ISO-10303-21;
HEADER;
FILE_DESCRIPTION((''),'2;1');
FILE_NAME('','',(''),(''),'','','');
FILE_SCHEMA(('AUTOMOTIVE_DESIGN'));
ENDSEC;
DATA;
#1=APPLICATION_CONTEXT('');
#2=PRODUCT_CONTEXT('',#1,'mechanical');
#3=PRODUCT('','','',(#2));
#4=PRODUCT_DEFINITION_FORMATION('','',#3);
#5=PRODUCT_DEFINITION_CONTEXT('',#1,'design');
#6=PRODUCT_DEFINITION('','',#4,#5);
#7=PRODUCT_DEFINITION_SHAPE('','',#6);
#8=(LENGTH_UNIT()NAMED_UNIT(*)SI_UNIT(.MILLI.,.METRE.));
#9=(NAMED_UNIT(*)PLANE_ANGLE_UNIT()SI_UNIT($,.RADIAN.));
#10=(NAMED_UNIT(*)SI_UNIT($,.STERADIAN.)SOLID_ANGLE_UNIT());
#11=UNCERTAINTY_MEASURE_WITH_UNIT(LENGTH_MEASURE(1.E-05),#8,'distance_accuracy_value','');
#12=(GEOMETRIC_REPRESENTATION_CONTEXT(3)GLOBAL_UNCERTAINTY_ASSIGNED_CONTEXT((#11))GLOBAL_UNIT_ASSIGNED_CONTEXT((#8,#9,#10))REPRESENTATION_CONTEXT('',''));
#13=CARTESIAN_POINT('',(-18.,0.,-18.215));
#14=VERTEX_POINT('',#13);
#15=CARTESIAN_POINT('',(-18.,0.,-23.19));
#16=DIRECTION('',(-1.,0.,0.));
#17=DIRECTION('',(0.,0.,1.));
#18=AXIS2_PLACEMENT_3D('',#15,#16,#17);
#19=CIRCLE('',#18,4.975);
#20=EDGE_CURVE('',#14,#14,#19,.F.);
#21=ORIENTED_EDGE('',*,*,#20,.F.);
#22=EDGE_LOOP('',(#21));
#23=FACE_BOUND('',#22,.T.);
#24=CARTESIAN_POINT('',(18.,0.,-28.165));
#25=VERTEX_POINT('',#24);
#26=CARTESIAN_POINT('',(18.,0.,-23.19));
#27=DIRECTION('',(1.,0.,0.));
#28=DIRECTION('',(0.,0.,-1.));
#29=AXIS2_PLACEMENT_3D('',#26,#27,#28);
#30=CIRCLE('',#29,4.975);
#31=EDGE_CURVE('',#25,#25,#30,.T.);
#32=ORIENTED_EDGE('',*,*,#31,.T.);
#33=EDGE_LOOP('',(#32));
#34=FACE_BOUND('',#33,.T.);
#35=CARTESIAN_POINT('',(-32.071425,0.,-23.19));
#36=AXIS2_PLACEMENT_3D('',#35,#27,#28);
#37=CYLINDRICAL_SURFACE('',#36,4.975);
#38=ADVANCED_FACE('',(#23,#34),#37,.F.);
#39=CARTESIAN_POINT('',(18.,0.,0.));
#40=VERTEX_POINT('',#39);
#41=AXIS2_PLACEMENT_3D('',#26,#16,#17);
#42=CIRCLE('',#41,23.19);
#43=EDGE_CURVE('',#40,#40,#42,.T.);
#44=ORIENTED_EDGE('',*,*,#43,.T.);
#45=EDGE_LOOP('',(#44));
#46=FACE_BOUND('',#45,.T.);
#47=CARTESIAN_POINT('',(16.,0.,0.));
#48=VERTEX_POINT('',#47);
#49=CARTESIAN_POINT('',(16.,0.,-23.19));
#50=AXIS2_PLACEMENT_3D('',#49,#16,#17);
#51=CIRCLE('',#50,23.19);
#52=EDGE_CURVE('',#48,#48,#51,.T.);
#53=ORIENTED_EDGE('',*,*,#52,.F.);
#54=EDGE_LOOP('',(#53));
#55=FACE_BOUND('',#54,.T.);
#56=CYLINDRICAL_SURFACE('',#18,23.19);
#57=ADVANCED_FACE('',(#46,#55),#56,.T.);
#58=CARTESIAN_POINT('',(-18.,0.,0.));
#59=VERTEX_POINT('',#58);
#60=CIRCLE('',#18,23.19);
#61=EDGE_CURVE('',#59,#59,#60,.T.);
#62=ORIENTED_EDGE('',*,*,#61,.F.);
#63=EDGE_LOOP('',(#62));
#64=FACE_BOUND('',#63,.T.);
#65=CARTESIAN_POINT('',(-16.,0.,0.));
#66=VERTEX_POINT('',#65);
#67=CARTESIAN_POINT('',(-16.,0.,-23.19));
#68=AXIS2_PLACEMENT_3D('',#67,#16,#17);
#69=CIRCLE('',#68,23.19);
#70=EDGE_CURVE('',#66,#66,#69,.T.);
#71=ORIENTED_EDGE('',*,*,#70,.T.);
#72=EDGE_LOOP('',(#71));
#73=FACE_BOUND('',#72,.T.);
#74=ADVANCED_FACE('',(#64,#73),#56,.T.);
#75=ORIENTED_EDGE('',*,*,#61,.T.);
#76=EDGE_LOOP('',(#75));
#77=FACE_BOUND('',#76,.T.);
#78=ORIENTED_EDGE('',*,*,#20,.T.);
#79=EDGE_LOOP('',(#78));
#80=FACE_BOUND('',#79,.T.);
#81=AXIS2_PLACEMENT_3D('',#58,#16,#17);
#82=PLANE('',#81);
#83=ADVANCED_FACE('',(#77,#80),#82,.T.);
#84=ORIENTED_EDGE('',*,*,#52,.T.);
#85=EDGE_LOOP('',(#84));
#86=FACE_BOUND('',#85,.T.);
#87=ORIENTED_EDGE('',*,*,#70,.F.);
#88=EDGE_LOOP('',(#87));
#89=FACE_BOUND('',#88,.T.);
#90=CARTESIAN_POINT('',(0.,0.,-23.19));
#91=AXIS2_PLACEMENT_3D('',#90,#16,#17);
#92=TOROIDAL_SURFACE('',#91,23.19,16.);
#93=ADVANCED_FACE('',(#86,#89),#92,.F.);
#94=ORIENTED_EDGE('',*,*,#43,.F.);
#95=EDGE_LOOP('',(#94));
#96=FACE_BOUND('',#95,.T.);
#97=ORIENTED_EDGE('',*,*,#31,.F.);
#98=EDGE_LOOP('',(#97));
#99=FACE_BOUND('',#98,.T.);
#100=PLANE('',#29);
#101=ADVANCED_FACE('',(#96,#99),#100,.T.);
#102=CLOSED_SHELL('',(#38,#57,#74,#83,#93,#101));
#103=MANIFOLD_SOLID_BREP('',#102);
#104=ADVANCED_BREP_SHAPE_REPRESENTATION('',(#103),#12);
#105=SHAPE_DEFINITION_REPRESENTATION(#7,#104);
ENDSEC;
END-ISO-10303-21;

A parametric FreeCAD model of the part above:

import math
import FreeCAD as App
import Part
import Sketcher

V = App.Vector
Q = App.Units.Quantity

doc = App.newDocument("Part")
params = doc.addObject("Spreadsheet::Sheet", "Params")
for row, (alias, value) in enumerate([
    ("sketch1_radius", "16 mm"),
    ("sketch1_width", "2 mm"),
    ("sketch1_height", "23.19 mm"),
    ("revolution_angle", "360 deg"),
    ("sketch2_diameter", "9.95 mm"),
    ("pocket1_length", "36 mm"),
], start=1):
    params.set(f"A{row}", alias)
    params.set(f"B{row}", "=" + value)
    params.setAlias(f"B{row}", alias)

body = doc.addObject("PartDesign::Body", "Body")

sketch1 = body.newObject("Sketcher::SketchObject", "Sketch")
sketch1.AttachmentSupport = (doc.getObject("XZ_Plane"), [""])
sketch1.MapMode = "FlatFace"
sketch1.addGeometry([
    Part.LineSegment(V(-18, 0, 0), V(-16, 0, 0)),
    Part.ArcOfCircle(Part.Circle(V(0, 0, 0), V(0, 0, 1), 16), math.radians(180), math.radians(360)),
    Part.LineSegment(V(16, 0, 0), V(18, 0, 0)),
    Part.LineSegment(V(18, 0, 0), V(18, -23.2, 0)),
    Part.LineSegment(V(18, -23.2, 0), V(-18, -23.2, 0)),
    Part.LineSegment(V(-18, -23.2, 0), V(-18, 0, 0)),
], False)
sketch1.addGeometry(Part.LineSegment(V(-18, -23.2, 0), V(18, -23.2, 0)), True)
sketch1.addConstraint([
    Sketcher.Constraint("Coincident", 0, 2, 1, 1),
    Sketcher.Constraint("Coincident", 1, 2, 2, 1),
    Sketcher.Constraint("Coincident", 2, 2, 3, 1),
    Sketcher.Constraint("Coincident", 3, 2, 4, 1),
    Sketcher.Constraint("Coincident", 4, 2, 5, 1),
    Sketcher.Constraint("Coincident", 5, 2, 0, 1),
    Sketcher.Constraint("Horizontal", 0),
    Sketcher.Constraint("Horizontal", 2),
    Sketcher.Constraint("Vertical", 3),
    Sketcher.Constraint("Horizontal", 4),
    Sketcher.Constraint("Vertical", 5),
    Sketcher.Constraint("Horizontal", 6),
    Sketcher.Constraint("Coincident", 1, 3, -1, 1),
    Sketcher.Constraint("Coincident", 6, 1, 4, 2),
    Sketcher.Constraint("Symmetric", 2, 2, 5, 2, -1, 1),
    Sketcher.Constraint("PointOnObject", 0, 2, -1),
    Sketcher.Constraint("Vertical", 2, 2, 6, 2),
    Sketcher.Constraint("Radius", 1, Q("16 mm")),
    Sketcher.Constraint("DistanceX", 0, 1, 0, 2, Q("2 mm")),
    Sketcher.Constraint("DistanceY", 3, 2, 3, 1, Q("23.19 mm")),
])
sketch1.setExpression("Constraints[17]", "Params.sketch1_radius")
sketch1.setExpression("Constraints[18]", "Params.sketch1_width")
sketch1.setExpression("Constraints[19]", "Params.sketch1_height")
revolution = body.newObject("PartDesign::Revolution", "Revolution")
revolution.Profile = sketch1
revolution.ReferenceAxis = (sketch1, ["Axis0"])
revolution.setExpression("Angle", "Params.revolution_angle")

sketch2 = body.newObject("Sketcher::SketchObject", "Sketch001")
sketch2.AttachmentSupport = (doc.getObject("YZ_Plane"), [""])
sketch2.MapMode = "FlatFace"
sketch2.AttachmentOffset = App.Placement(V(0, 0, 18), App.Rotation())
sketch2.addGeometry(Part.Circle(V(0, -23.2, 0), V(0, 0, 1), 5), False)
sketch2.addConstraint([
    Sketcher.Constraint("PointOnObject", 0, 3, -2),
    Sketcher.Constraint("Diameter", 0, Q("9.95 mm")),
    Sketcher.Constraint("DistanceY", 0, 3, -1, 1, Q("23.19 mm")),
])
sketch2.setExpression("Constraints[1]", "Params.sketch2_diameter")
pocket1 = body.newObject("PartDesign::Pocket", "Pocket")
pocket1.Profile = sketch2
pocket1.setExpression("Length", "Params.pocket1_length")

doc.recompute()
